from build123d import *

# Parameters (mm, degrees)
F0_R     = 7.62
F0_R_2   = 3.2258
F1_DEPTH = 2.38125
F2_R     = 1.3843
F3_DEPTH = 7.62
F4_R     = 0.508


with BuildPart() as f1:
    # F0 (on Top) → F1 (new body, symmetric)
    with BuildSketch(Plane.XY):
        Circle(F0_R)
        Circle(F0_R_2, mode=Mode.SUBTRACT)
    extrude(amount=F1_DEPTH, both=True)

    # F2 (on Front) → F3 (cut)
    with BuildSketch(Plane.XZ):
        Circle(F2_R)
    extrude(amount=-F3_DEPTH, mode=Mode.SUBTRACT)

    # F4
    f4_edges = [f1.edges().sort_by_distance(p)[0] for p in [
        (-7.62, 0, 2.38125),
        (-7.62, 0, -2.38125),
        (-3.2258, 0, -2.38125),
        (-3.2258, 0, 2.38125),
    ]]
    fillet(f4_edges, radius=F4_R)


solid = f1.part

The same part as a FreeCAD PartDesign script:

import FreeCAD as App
import Part
import Sketcher

V = App.Vector
Q = App.Units.Quantity


def edges_at(feature, points):
    """Names of the edges that pass closest to the given points."""
    edges = feature.Shape.Edges
    near = lambda p: min(range(len(edges)), key=lambda i: edges[i].distToShape(Part.Vertex(*p))[0])
    return sorted({f"Edge{near(p) + 1}" for p in points})

doc = App.newDocument("Part")
params = doc.addObject("Spreadsheet::Sheet", "Params")
for row, (alias, value) in enumerate([
    ("sketch1_diameter", "0.6 in"),
    ("sketch1_diameter2", "0.254 in"),
    ("pad1_length", "0.1875 in"),
    ("sketch2_diameter", "0.109 in"),
    ("pocket1_length", "0.3 in"),
    ("fillet_radius", "0.02 in"),
], start=1):
    params.set(f"A{row}", alias)
    params.set(f"B{row}", "=" + value)
    params.setAlias(f"B{row}", alias)

body = doc.addObject("PartDesign::Body", "Body")

# Sketch on XY plane
sketch1 = doc.addObject("Sketcher::SketchObject", "Sketch")
body.addObject(sketch1)
sketch1.AttachmentSupport = (doc.XY_Plane, [""])
sketch1.MapMode = "FlatFace"
sketch1.addGeometry([
    Part.Circle(V(0, 0, 0), V(0, 0, 1), 7.62),
    Part.Circle(V(0, 0, 0), V(0, 0, 1), 3.2258),
], False)
sketch1.addConstraint([
    Sketcher.Constraint("Coincident", 0, 3, -1, 1),
    Sketcher.Constraint("Coincident", 1, 3, -1, 1),
    Sketcher.Constraint("Diameter", 0, Q("0.6 in")),
    Sketcher.Constraint("Diameter", 1, Q("0.254 in")),
])
sketch1.setExpression("Constraints[2]", "Params.sketch1_diameter")
sketch1.setExpression("Constraints[3]", "Params.sketch1_diameter2")
pad1 = doc.addObject("PartDesign::Pad", "Pad")
body.addObject(pad1)
pad1.Profile = sketch1
pad1.setExpression("Length", "Params.pad1_length")
pad1.Midplane = True

# Sketch on XZ plane
sketch2 = doc.addObject("Sketcher::SketchObject", "Sketch001")
body.addObject(sketch2)
sketch2.AttachmentSupport = (doc.XZ_Plane, [""])
sketch2.MapMode = "FlatFace"
sketch2.addGeometry(Part.Circle(V(0, 0, 0), V(0, 0, 1), 1.3843), False)
sketch2.addConstraint([
    Sketcher.Constraint("Coincident", 0, 3, -1, 1),
    Sketcher.Constraint("Diameter", 0, Q("0.109 in")),
])
sketch2.setExpression("Constraints[1]", "Params.sketch2_diameter")
pocket1 = doc.addObject("PartDesign::Pocket", "Pocket")
body.addObject(pocket1)
pocket1.Profile = sketch2
pocket1.setExpression("Length", "Params.pocket1_length")
doc.recompute()

fillet = doc.addObject("PartDesign::Fillet", "Fillet")
body.addObject(fillet)
fillet.Base = (pocket1, edges_at(pocket1, [
    (-7.62, 0, 2.381),
    (-7.62, 0, -2.381),
    (-3.226, 0, -2.381),
    (-3.226, 0, 2.381),
]))
fillet.setExpression("Radius", "Params.fillet_radius")

doc.recompute()
